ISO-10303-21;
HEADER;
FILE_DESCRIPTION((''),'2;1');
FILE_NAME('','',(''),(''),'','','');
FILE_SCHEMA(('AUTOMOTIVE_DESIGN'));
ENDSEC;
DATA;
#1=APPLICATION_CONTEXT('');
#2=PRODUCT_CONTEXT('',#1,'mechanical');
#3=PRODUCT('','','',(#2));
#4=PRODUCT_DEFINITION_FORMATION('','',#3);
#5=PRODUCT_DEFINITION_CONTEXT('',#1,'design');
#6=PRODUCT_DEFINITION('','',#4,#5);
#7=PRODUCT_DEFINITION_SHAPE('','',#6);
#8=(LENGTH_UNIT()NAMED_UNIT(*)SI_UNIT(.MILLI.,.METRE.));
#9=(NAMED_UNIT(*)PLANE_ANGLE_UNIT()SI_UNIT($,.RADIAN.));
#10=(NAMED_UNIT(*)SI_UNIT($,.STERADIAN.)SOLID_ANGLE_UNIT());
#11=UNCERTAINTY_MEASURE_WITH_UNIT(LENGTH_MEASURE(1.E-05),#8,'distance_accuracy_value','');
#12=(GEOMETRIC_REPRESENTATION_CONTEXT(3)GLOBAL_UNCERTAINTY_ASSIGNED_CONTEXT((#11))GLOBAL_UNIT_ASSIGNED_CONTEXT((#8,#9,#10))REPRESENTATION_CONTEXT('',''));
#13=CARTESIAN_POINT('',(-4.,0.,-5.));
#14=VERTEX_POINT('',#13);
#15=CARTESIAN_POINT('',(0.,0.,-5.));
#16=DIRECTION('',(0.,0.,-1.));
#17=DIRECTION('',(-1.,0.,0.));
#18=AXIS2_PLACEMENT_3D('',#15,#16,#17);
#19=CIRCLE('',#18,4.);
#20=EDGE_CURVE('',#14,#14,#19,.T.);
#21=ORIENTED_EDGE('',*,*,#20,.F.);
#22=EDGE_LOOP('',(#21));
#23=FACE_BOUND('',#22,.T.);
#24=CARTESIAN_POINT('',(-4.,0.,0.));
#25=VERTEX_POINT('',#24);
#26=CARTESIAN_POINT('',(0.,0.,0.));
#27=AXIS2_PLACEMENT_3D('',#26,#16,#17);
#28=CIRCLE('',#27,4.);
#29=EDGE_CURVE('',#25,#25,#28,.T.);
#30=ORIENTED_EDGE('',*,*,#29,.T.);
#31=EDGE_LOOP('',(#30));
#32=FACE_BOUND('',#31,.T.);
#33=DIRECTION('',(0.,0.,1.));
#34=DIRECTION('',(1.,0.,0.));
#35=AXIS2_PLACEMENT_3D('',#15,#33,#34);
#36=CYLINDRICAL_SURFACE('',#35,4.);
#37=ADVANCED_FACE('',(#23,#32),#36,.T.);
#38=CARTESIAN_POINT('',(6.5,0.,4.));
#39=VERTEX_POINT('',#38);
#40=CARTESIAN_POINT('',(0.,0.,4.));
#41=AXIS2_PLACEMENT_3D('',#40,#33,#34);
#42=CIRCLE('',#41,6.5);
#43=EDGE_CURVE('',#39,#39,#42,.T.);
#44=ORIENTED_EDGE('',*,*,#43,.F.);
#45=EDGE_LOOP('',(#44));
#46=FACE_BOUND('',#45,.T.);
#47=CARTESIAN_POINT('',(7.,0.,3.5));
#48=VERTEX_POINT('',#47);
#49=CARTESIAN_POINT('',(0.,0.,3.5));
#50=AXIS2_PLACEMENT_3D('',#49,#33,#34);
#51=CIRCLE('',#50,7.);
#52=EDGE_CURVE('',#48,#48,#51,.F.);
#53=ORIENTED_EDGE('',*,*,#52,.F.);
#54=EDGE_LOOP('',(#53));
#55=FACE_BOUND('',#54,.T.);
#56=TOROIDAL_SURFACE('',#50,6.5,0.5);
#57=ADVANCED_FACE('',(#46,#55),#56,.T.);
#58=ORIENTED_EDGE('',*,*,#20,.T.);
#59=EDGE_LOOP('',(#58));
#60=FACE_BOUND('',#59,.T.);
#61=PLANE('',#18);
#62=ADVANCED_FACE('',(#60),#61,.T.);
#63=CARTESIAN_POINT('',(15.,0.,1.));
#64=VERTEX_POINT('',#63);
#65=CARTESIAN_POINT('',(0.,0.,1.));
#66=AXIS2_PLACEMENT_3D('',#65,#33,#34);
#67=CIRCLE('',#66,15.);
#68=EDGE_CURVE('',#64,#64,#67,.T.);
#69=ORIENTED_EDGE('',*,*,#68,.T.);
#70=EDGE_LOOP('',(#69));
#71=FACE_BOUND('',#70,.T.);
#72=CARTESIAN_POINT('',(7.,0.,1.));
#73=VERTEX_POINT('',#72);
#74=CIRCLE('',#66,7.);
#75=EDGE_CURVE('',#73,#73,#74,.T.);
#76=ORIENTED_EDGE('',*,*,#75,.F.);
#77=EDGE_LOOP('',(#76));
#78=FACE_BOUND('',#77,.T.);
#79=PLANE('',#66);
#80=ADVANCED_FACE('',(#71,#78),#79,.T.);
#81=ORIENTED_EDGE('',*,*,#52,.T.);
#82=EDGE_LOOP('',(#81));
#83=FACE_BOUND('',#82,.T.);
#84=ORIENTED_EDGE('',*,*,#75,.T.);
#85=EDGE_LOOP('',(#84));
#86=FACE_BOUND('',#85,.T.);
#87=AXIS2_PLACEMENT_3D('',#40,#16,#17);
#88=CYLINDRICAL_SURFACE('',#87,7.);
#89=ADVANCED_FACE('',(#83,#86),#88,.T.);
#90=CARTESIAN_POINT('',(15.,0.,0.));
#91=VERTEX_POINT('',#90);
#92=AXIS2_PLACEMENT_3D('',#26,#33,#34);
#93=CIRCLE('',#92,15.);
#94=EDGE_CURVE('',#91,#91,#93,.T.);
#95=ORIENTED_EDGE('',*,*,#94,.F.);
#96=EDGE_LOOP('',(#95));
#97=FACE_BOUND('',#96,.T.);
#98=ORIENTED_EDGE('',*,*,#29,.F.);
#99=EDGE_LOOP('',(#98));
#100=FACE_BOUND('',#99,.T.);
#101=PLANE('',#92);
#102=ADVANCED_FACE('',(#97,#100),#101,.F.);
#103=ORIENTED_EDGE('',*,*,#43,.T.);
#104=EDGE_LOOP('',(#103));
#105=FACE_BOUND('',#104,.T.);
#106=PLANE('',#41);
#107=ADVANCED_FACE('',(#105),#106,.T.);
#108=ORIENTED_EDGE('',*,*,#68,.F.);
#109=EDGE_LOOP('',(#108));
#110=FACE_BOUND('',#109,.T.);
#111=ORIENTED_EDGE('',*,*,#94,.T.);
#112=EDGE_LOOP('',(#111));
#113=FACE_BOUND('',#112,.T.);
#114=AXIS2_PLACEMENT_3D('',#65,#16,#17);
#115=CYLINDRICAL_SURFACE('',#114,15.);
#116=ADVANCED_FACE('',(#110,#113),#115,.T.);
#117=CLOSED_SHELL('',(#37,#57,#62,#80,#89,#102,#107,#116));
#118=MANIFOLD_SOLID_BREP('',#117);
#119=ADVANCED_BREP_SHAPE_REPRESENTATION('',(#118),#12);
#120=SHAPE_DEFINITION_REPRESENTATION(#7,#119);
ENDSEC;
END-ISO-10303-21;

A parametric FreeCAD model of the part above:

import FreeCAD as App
import Part
import Sketcher
Q = App.Units.Quantity


def edges_at(feature, points):
    """Names of the edges that pass closest to the given points."""
    edges = feature.Shape.Edges
    near = lambda p: min(range(len(edges)), key=lambda i: edges[i].distToShape(Part.Vertex(*p))[0])
    return sorted({f"Edge{near(p) + 1}" for p in points})

doc = App.newDocument("Part")
body = doc.addObject("PartDesign::Body", "Body")

# Sketch on XY plane
sketch1 = doc.addObject("Sketcher::SketchObject", "Sketch")
body.addObject(sketch1)
sketch1.AttachmentSupport = (doc.XY_Plane, [""])
sketch1.MapMode = "FlatFace"
sketch1.addGeometry(Part.Circle(App.Vector(0, 0, 0), App.Vector(0, 0, 1), 15), False)
sketch1.addConstraint([
    Sketcher.Constraint("Coincident", 0, 3, -1, 1),
    Sketcher.Constraint("Diameter", 0, Q("30 mm")),
])
pad1 = doc.addObject("PartDesign::Pad", "Pad")
body.addObject(pad1)
pad1.Profile = sketch1
pad1.Length = 1

# Sketch on XY plane
sketch2 = doc.addObject("Sketcher::SketchObject", "Sketch001")
body.addObject(sketch2)
sketch2.AttachmentSupport = (doc.XY_Plane, [""])
sketch2.MapMode = "FlatFace"
sketch2.AttachmentOffset = App.Placement(App.Vector(0, 0, 1), App.Rotation())
sketch2.addGeometry(Part.Circle(App.Vector(0, 0, 0), App.Vector(0, 0, 1), 7), False)
sketch2.addConstraint([
    Sketcher.Constraint("Coincident", 0, 3, -1, 1),
    Sketcher.Constraint("Diameter", 0, Q("14 mm")),
])
pad2 = doc.addObject("PartDesign::Pad", "Pad001")
body.addObject(pad2)
pad2.Profile = sketch2
pad2.Length = 3
doc.recompute()

fillet = doc.addObject("PartDesign::Fillet", "Fillet")
body.addObject(fillet)
fillet.Base = (pad2, edges_at(pad2, [(-7, 0, 4)]))
fillet.Radius = 0.5

# Sketch on XY plane
sketch3 = doc.addObject("Sketcher::SketchObject", "Sketch002")
body.addObject(sketch3)
sketch3.AttachmentSupport = (doc.XY_Plane, [""])
sketch3.MapMode = "FlatFace"
sketch3.addGeometry(Part.Circle(App.Vector(0, 0, 0), App.Vector(0, 0, 1), 4), False)
sketch3.addConstraint([
    Sketcher.Constraint("Coincident", 0, 3, -1, 1),
    Sketcher.Constraint("Diameter", 0, Q("8 mm")),
])
pad3 = doc.addObject("PartDesign::Pad", "Pad002")
body.addObject(pad3)
pad3.Profile = sketch3
pad3.Length = 5
pad3.Reversed = True

doc.recompute()
